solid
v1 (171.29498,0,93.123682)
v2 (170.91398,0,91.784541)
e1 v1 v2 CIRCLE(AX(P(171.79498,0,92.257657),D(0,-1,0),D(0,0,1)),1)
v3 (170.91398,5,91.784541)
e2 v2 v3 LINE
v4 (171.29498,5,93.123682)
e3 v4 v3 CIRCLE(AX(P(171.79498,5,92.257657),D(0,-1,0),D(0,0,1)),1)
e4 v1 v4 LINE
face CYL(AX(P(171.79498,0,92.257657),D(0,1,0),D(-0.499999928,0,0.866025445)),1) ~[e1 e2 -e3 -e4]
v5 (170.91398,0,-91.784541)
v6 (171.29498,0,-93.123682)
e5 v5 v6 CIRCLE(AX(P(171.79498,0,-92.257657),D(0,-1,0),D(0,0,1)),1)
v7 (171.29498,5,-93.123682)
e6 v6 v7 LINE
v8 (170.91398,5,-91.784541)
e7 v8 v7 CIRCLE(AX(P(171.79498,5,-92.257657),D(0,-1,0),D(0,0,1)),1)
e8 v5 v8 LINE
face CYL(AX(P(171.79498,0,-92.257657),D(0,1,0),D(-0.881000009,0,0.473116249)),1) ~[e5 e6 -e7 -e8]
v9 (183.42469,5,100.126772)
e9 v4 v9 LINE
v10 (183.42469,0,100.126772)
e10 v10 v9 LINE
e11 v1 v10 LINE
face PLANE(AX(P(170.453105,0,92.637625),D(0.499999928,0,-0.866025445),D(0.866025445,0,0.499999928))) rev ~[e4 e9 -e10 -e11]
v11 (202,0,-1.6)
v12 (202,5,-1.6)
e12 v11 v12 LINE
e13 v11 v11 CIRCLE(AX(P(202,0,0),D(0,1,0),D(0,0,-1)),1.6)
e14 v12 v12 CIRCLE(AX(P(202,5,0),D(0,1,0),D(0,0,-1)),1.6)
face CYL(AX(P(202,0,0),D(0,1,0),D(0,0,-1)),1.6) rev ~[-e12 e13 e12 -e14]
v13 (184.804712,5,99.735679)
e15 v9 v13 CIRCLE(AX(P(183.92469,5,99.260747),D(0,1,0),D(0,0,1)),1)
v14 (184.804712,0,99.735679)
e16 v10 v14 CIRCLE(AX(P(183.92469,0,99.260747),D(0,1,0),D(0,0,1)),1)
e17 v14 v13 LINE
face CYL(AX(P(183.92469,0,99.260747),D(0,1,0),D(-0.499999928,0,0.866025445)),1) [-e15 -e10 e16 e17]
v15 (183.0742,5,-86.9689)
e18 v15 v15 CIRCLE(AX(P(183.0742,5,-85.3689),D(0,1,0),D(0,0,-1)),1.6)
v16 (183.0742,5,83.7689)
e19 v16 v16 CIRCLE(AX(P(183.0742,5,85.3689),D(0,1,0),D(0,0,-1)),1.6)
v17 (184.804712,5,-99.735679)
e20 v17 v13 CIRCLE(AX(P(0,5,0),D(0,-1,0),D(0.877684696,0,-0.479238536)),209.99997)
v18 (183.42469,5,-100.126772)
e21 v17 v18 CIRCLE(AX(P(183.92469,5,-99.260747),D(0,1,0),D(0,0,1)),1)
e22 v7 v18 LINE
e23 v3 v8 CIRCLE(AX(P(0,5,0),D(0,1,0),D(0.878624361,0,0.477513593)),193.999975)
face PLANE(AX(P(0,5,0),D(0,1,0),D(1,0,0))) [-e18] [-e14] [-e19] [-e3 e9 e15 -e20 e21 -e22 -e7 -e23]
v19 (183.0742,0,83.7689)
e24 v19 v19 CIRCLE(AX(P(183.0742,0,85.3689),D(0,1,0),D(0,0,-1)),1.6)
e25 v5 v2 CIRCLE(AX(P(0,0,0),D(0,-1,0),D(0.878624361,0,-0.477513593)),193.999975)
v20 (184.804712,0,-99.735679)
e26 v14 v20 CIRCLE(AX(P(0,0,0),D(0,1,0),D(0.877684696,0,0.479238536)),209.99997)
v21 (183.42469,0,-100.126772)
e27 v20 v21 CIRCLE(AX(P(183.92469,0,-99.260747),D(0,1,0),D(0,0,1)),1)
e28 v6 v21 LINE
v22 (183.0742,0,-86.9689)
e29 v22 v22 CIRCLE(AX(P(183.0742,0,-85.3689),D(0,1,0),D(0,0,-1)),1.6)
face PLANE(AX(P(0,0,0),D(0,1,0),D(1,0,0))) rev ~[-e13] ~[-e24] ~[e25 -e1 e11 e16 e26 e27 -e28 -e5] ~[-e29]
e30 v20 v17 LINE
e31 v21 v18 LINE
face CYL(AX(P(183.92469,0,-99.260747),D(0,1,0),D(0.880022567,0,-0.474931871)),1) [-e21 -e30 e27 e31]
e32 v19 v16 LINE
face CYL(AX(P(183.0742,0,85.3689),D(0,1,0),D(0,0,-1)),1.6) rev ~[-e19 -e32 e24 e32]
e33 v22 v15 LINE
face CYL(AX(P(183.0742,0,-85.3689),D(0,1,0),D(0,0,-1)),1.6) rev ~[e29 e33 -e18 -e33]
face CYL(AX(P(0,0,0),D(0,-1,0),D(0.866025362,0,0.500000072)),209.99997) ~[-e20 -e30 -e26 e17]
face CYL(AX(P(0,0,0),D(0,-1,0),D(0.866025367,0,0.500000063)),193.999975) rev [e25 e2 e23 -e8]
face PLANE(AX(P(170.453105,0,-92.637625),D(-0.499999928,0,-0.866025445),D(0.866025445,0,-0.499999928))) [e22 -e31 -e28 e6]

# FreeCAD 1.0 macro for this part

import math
import FreeCAD as App
import Part
import Sketcher

V = App.Vector
Q = App.Units.Quantity


def edges_at(feature, points):
    """Names of the edges that pass closest to the given points."""
    edges = feature.Shape.Edges
    near = lambda p: min(range(len(edges)), key=lambda i: edges[i].distToShape(Part.Vertex(*p))[0])
    return sorted({f"Edge{near(p) + 1}" for p in points})

doc = App.newDocument("Part")
body = doc.addObject("PartDesign::Body", "Body")

sketch1 = body.newObject("Sketcher::SketchObject", "Sketch")
sketch1.AttachmentSupport = (doc.getObject("XZ_Plane"), [""])
sketch1.MapMode = "FlatFace"
sketch1.addGeometry([
    Part.LineSegment(V(170, 93, 0), V(184, 101, 0)),
    Part.ArcOfCircle(Part.Circle(V(0, 0, 0), V(0, 0, 1), 210), math.radians(-29), math.radians(29)),
    Part.LineSegment(V(184, -101, 0), V(170, -93, 0)),
    Part.ArcOfCircle(Part.Circle(V(0, 0, 0), V(0, 0, 1), 194), math.radians(-29), math.radians(29)),
], False)
sketch1.addConstraint([
    Sketcher.Constraint("Coincident", 0, 2, 1, 2),
    Sketcher.Constraint("Coincident", 1, 1, 2, 1),
    Sketcher.Constraint("Coincident", 2, 2, 3, 1),
    Sketcher.Constraint("Coincident", 3, 2, 0, 1),
    Sketcher.Constraint("Coincident", 1, 3, -1, 1),
    Sketcher.Constraint("Coincident", 3, 3, -1, 1),
    Sketcher.Constraint("Vertical", 0, 2, 1, 1),
    Sketcher.Constraint("Vertical", 2, 2, 3, 2),
    Sketcher.Constraint("Radius", 1, Q("210 mm")),
    Sketcher.Constraint("Radius", 3, Q("194 mm")),
    Sketcher.Constraint("Angle", 0, Q("30 deg")),
    Sketcher.Constraint("DistanceY", -1, 1, 0, 2, Q("100.64 mm")),
])
pad1 = body.newObject("PartDesign::Pad", "Pad")
pad1.Profile = sketch1
pad1.Length = 5
pad1.Reversed = True

sketch2 = body.newObject("Sketcher::SketchObject", "Sketch001")
sketch2.AttachmentSupport = (doc.getObject("XZ_Plane"), [""])
sketch2.MapMode = "FlatFace"
sketch2.addGeometry([
    Part.Circle(V(183.1, 85.4, 0), V(0, 0, 1), 1.6),
    Part.Circle(V(202, 0, 0), V(0, 0, 1), 1.6),
    Part.Circle(V(183.1, -85.4, 0), V(0, 0, 1), 1.6),
], False)
sketch2.addConstraint([
    Sketcher.Constraint("Equal", 0, 1),
    Sketcher.Constraint("Equal", 1, 2),
    Sketcher.Constraint("Symmetric", 0, 3, 2, 3, -1),
    Sketcher.Constraint("PointOnObject", 1, 3, -1),
    Sketcher.Constraint("Diameter", 0, Q("3.2 mm")),
    Sketcher.Constraint("DistanceX", -1, 1, 1, 3, Q("202 mm")),
    Sketcher.Constraint("DistanceY", -1, 1, 0, 3, Q("85.369 mm")),
    Sketcher.Constraint("DistanceX", -1, 1, 0, 3, Q("183.0742 mm")),
])
doc.recompute()
hole = body.newObject("PartDesign::Hole", "Hole")
hole.Profile = sketch2
hole.ThreadType = "None"
hole.Diameter = 3.2
hole.DepthType = "ThroughAll"
doc.recompute()

fillet = body.newObject("PartDesign::Fillet", "Fillet")
fillet.Base = (hole, edges_at(hole, [
    (184.314, 2.5, 100.64),
    (184.314, 2.5, -100.64),
    (170.453, 2.5, 92.638),
    (170.453, 2.5, -92.638),
]))
fillet.Radius = 1

doc.recompute()
